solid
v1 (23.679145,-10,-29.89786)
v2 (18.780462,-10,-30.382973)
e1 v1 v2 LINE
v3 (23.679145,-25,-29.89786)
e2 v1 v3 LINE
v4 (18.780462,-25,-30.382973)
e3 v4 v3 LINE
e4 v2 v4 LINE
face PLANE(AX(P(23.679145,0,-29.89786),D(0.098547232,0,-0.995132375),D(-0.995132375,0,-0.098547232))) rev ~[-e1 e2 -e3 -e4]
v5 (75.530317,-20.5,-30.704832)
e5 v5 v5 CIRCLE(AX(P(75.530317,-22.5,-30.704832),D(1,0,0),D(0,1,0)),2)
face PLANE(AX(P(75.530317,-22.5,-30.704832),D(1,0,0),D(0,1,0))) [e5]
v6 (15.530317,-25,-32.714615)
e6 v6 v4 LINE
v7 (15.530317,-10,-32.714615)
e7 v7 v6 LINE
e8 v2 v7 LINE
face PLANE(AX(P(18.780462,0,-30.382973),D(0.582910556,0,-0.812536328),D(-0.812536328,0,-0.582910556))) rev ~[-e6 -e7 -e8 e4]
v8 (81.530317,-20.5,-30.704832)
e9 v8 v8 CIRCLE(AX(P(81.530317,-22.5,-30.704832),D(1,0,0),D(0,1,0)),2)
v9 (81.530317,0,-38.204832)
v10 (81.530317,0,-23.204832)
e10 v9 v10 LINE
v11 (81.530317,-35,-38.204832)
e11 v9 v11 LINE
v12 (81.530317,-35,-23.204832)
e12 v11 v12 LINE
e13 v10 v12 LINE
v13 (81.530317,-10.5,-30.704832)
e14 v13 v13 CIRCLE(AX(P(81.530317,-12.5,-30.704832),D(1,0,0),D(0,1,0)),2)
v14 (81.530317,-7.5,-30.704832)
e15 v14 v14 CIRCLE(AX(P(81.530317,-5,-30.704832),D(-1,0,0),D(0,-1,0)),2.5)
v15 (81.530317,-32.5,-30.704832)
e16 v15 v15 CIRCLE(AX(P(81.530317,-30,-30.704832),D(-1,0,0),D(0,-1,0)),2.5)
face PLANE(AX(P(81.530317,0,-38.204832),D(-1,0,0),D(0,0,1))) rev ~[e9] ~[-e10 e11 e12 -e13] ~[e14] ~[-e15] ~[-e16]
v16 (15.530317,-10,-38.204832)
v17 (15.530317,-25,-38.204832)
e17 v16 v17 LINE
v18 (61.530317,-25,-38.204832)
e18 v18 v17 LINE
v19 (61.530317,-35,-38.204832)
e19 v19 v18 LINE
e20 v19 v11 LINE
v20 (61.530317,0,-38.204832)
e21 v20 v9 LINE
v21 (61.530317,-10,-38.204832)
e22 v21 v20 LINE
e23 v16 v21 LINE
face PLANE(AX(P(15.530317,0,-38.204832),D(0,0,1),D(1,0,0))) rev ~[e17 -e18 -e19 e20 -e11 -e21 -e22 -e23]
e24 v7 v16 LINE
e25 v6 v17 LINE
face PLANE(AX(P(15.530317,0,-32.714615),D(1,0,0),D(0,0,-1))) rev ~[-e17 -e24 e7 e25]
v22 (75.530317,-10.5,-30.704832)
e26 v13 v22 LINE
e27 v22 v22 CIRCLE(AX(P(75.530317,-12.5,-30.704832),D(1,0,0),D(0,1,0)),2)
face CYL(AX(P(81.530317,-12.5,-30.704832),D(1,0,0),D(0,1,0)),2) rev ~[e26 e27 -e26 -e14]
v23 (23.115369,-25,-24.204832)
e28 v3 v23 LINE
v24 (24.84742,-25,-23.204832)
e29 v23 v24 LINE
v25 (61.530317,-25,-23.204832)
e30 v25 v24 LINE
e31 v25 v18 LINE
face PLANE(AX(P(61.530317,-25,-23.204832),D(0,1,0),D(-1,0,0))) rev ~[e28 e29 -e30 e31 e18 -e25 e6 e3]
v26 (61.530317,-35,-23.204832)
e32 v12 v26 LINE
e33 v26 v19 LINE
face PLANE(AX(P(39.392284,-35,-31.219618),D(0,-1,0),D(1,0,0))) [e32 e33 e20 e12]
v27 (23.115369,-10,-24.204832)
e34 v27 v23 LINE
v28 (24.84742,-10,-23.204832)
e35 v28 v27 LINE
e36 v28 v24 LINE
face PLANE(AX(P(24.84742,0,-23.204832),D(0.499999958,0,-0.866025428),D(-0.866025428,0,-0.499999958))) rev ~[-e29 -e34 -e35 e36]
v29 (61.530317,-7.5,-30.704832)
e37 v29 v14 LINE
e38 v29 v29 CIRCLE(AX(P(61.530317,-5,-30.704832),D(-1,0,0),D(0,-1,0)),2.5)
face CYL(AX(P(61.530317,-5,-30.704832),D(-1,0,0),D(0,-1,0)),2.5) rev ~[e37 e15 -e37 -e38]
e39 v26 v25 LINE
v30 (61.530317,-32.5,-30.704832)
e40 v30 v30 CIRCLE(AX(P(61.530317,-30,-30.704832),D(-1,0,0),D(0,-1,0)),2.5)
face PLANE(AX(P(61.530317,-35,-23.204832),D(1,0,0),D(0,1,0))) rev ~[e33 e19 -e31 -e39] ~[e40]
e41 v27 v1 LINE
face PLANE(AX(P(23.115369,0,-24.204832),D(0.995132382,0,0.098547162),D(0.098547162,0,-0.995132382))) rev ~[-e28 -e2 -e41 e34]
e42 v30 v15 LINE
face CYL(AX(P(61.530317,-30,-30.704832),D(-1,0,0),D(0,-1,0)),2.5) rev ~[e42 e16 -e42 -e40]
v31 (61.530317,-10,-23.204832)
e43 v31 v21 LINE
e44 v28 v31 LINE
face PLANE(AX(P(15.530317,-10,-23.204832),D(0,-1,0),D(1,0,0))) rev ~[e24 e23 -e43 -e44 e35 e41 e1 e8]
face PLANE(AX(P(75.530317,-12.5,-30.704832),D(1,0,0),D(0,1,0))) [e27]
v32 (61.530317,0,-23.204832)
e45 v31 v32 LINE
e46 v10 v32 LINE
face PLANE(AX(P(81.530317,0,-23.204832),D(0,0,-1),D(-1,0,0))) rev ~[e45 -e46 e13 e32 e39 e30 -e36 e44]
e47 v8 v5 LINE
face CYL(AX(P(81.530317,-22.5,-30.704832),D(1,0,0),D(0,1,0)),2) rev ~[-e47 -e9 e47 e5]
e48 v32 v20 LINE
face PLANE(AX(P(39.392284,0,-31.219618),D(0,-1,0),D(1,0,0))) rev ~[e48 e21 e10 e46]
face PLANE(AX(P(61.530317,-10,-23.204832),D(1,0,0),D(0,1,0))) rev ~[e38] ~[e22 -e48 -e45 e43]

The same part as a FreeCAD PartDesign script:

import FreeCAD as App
import Part
import Sketcher

V = App.Vector
Q = App.Units.Quantity


def add_polygon(sketch, points):
    """Adds a closed chain of lines whose ends are joined by coincident constraints."""
    first, n = sketch.GeometryCount, len(points)
    for a, b in zip(points, points[1:] + points[:1]):
        sketch.addGeometry(Part.LineSegment(App.Vector(*a, 0), App.Vector(*b, 0)), False)
    for i in range(n):
        sketch.addConstraint(Sketcher.Constraint("Coincident", first + i, 2, first + (i + 1) % n, 1))

doc = App.newDocument("Part")
body = doc.addObject("PartDesign::Body", "Body")

# Sketch on XZ plane
sketch1 = body.newObject("Sketcher::SketchObject", "Sketch")
sketch1.AttachmentSupport = (doc.getObject("XZ_Plane"), [""])
sketch1.MapMode = "FlatFace"
add_polygon(sketch1, [(24.84742, -23.204832), (23.115369, -24.204832), (23.679145, -29.89786), (18.780462, -30.382973), (15.530317, -32.714615), (15.530317, -38.204832), (81.530317, -38.204832), (81.530317, -23.204832)])  # lines 0-7
sketch1.addConstraint(Sketcher.Constraint("Vertical", 4))
sketch1.addConstraint(Sketcher.Constraint("Horizontal", 5))
sketch1.addConstraint(Sketcher.Constraint("Vertical", 6))
sketch1.addConstraint(Sketcher.Constraint("Horizontal", 7))
sketch1.addConstraint(Sketcher.Constraint("Perpendicular", 1, 2))
sketch1.addConstraint(Sketcher.Constraint("DistanceX", 5, 1, 5, 2, Q("66 mm")))
sketch1.addConstraint(Sketcher.Constraint("DistanceY", 6, 1, 6, 2, Q("15 mm")))
sketch1.addConstraint(Sketcher.Constraint("Angle", 0, Q("-150.000003 deg")))
sketch1.addConstraint(Sketcher.Constraint("Distance", 0, Q("2 mm")))
sketch1.addConstraint(Sketcher.Constraint("Distance", 3, Q("4 mm")))
sketch1.addConstraint(Sketcher.Constraint("DistanceX", 7, 2, 7, 1, Q("56.682897 mm")))
sketch1.addConstraint(Sketcher.Constraint("DistanceY", 4, 2, 4, 1, Q("5.490217 mm")))
sketch1.addConstraint(Sketcher.Constraint("DistanceX", -1, 1, 0, 2, Q("23.115369 mm")))
sketch1.addConstraint(Sketcher.Constraint("DistanceY", 0, 2, -1, 1, Q("24.204832 mm")))
sketch1.addConstraint(Sketcher.Constraint("DistanceY", 1, 2, -1, 1, Q("29.89786 mm")))
sketch1.addConstraint(Sketcher.Constraint("DistanceX", -1, 1, 2, 2, Q("18.780462 mm")))
pad1 = body.newObject("PartDesign::Pad", "Pad")
pad1.Profile = sketch1
pad1.Length = 35

# Sketch on XY plane
sketch2 = body.newObject("Sketcher::SketchObject", "Sketch001")
sketch2.AttachmentSupport = (doc.getObject("XY_Plane"), [""])
sketch2.MapMode = "FlatFace"
sketch2.AttachmentOffset = App.Placement(V(0, 0, -23.204832), App.Rotation())
add_polygon(sketch2, [(61.530317, -10), (61.530317, 0), (15.530317, 0), (15.530317, -10)])  # lines 0-3
add_polygon(sketch2, [(61.530317, -35), (61.530317, -25), (15.530317, -25), (15.530317, -35)])  # lines 4-7
sketch2.addConstraint(Sketcher.Constraint("Vertical", 0))
sketch2.addConstraint(Sketcher.Constraint("Horizontal", 1))
sketch2.addConstraint(Sketcher.Constraint("Vertical", 2))
sketch2.addConstraint(Sketcher.Constraint("Horizontal", 3))
sketch2.addConstraint(Sketcher.Constraint("Vertical", 4))
sketch2.addConstraint(Sketcher.Constraint("Horizontal", 5))
sketch2.addConstraint(Sketcher.Constraint("Vertical", 6))
sketch2.addConstraint(Sketcher.Constraint("Horizontal", 7))
sketch2.addConstraint(Sketcher.Constraint("PointOnObject", 0, 2, -1))
sketch2.addConstraint(Sketcher.Constraint("Vertical", 3, 2, 4, 2))
sketch2.addConstraint(Sketcher.Constraint("Vertical", 2, 2, 5, 2))
sketch2.addConstraint(Sketcher.Constraint("Equal", 2, 4))
sketch2.addConstraint(Sketcher.Constraint("DistanceX", 1, 2, 1, 1, Q("46 mm")))
sketch2.addConstraint(Sketcher.Constraint("DistanceY", 0, 1, 0, 2, Q("10 mm")))
sketch2.addConstraint(Sketcher.Constraint("DistanceY", 4, 2, -1, 1, Q("25 mm")))
sketch2.addConstraint(Sketcher.Constraint("DistanceX", -1, 1, 0, 2, Q("61.530317 mm")))
pocket1 = body.newObject("PartDesign::Pocket", "Pocket")
pocket1.Profile = sketch2
pocket1.Type = "ThroughAll"

# Sketch on YZ plane
sketch3 = body.newObject("Sketcher::SketchObject", "Sketch002")
sketch3.AttachmentSupport = (doc.getObject("YZ_Plane"), [""])
sketch3.MapMode = "FlatFace"
sketch3.AttachmentOffset = App.Placement(V(0, 0, 61.530317), App.Rotation())
sketch3.addGeometry(Part.Circle(V(-30, -30.704832, 0), V(0, 0, 1), 2.5), False)
sketch3.addGeometry(Part.Circle(V(-5, -30.704832, 0), V(0, 0, 1), 2.5), False)
sketch3.addConstraint(Sketcher.Constraint("Equal", 0, 1))
sketch3.addConstraint(Sketcher.Constraint("Horizontal", 0, 3, 1, 3))
sketch3.addConstraint(Sketcher.Constraint("Diameter", 0, Q("5 mm")))
sketch3.addConstraint(Sketcher.Constraint("DistanceX", 0, 3, -1, 1, Q("30 mm")))
sketch3.addConstraint(Sketcher.Constraint("DistanceX", 1, 3, -1, 1, Q("5 mm")))
sketch3.addConstraint(Sketcher.Constraint("DistanceY", 0, 3, -1, 1, Q("30.704832 mm")))
pocket2 = body.newObject("PartDesign::Pocket", "Pocket001")
pocket2.Profile = sketch3
pocket2.Type = "ThroughAll"
pocket2.Reversed = True

# Sketch on YZ plane
sketch4 = body.newObject("Sketcher::SketchObject", "Sketch003")
sketch4.AttachmentSupport = (doc.getObject("YZ_Plane"), [""])
sketch4.MapMode = "FlatFace"
sketch4.AttachmentOffset = App.Placement(V(0, 0, 81.530317), App.Rotation())
sketch4.addGeometry(Part.Circle(V(-12.5, -30.704832, 0), V(0, 0, 1), 2), False)
sketch4.addGeometry(Part.Circle(V(-22.5, -30.704832, 0), V(0, 0, 1), 2), False)
sketch4.addConstraint(Sketcher.Constraint("Equal", 0, 1))
sketch4.addConstraint(Sketcher.Constraint("Horizontal", 0, 3, 1, 3))
sketch4.addConstraint(Sketcher.Constraint("Diameter", 0, Q("4 mm")))
sketch4.addConstraint(Sketcher.Constraint("DistanceX", 1, 3, 0, 3, Q("10 mm")))
sketch4.addConstraint(Sketcher.Constraint("DistanceX", 0, 3, -1, 1, Q("12.5 mm")))
sketch4.addConstraint(Sketcher.Constraint("DistanceY", 0, 3, -1, 1, Q("30.704832 mm")))
pocket3 = body.newObject("PartDesign::Pocket", "Pocket002")
pocket3.Profile = sketch4
pocket3.Length = 6
body2 = doc.addObject("PartDesign::Body", "Body001")

# Sketch on YZ plane
sketch5 = body2.newObject("Sketcher::SketchObject", "Sketch004")
sketch5.AttachmentSupport = (doc.getObject("YZ_Plane001"), [""])
sketch5.MapMode = "FlatFace"
add_polygon(sketch5, [(-65.77114, 59.532251), (-65.77114, 47.400545), (-42.240981, 47.400545), (-42.240981, 59.532251)])  # lines 0-3
sketch5.addConstraint(Sketcher.Constraint("Vertical", 0))
sketch5.addConstraint(Sketcher.Constraint("Horizontal", 1))
sketch5.addConstraint(Sketcher.Constraint("Vertical", 2))
sketch5.addConstraint(Sketcher.Constraint("Horizontal", 3))
sketch5.addConstraint(Sketcher.Constraint("DistanceX", 1, 1, 1, 2, Q("23.530159 mm")))
sketch5.addConstraint(Sketcher.Constraint("DistanceY", 0, 2, 0, 1, Q("12.131706 mm")))
sketch5.addConstraint(Sketcher.Constraint("DistanceX", 0, 2, -1, 1, Q("65.77114 mm")))
sketch5.addConstraint(Sketcher.Constraint("DistanceY", -1, 1, 2, 2, Q("59.532251 mm")))
pad2 = body2.newObject("PartDesign::Pad", "Pad001")
pad2.Profile = sketch5
pad2.Length = 25
body3 = doc.addObject("PartDesign::Body", "Body002")
doc.recompute()

body2.Placement = App.Placement(V(0, -65, 0), App.Rotation(V(0, 0, 1), 0))
boolean = body3.newObject("PartDesign::Boolean", "Boolean")
boolean.Type = "Fuse"
boolean.addObjects([body2])
body3.Visibility = False

doc.recompute()
